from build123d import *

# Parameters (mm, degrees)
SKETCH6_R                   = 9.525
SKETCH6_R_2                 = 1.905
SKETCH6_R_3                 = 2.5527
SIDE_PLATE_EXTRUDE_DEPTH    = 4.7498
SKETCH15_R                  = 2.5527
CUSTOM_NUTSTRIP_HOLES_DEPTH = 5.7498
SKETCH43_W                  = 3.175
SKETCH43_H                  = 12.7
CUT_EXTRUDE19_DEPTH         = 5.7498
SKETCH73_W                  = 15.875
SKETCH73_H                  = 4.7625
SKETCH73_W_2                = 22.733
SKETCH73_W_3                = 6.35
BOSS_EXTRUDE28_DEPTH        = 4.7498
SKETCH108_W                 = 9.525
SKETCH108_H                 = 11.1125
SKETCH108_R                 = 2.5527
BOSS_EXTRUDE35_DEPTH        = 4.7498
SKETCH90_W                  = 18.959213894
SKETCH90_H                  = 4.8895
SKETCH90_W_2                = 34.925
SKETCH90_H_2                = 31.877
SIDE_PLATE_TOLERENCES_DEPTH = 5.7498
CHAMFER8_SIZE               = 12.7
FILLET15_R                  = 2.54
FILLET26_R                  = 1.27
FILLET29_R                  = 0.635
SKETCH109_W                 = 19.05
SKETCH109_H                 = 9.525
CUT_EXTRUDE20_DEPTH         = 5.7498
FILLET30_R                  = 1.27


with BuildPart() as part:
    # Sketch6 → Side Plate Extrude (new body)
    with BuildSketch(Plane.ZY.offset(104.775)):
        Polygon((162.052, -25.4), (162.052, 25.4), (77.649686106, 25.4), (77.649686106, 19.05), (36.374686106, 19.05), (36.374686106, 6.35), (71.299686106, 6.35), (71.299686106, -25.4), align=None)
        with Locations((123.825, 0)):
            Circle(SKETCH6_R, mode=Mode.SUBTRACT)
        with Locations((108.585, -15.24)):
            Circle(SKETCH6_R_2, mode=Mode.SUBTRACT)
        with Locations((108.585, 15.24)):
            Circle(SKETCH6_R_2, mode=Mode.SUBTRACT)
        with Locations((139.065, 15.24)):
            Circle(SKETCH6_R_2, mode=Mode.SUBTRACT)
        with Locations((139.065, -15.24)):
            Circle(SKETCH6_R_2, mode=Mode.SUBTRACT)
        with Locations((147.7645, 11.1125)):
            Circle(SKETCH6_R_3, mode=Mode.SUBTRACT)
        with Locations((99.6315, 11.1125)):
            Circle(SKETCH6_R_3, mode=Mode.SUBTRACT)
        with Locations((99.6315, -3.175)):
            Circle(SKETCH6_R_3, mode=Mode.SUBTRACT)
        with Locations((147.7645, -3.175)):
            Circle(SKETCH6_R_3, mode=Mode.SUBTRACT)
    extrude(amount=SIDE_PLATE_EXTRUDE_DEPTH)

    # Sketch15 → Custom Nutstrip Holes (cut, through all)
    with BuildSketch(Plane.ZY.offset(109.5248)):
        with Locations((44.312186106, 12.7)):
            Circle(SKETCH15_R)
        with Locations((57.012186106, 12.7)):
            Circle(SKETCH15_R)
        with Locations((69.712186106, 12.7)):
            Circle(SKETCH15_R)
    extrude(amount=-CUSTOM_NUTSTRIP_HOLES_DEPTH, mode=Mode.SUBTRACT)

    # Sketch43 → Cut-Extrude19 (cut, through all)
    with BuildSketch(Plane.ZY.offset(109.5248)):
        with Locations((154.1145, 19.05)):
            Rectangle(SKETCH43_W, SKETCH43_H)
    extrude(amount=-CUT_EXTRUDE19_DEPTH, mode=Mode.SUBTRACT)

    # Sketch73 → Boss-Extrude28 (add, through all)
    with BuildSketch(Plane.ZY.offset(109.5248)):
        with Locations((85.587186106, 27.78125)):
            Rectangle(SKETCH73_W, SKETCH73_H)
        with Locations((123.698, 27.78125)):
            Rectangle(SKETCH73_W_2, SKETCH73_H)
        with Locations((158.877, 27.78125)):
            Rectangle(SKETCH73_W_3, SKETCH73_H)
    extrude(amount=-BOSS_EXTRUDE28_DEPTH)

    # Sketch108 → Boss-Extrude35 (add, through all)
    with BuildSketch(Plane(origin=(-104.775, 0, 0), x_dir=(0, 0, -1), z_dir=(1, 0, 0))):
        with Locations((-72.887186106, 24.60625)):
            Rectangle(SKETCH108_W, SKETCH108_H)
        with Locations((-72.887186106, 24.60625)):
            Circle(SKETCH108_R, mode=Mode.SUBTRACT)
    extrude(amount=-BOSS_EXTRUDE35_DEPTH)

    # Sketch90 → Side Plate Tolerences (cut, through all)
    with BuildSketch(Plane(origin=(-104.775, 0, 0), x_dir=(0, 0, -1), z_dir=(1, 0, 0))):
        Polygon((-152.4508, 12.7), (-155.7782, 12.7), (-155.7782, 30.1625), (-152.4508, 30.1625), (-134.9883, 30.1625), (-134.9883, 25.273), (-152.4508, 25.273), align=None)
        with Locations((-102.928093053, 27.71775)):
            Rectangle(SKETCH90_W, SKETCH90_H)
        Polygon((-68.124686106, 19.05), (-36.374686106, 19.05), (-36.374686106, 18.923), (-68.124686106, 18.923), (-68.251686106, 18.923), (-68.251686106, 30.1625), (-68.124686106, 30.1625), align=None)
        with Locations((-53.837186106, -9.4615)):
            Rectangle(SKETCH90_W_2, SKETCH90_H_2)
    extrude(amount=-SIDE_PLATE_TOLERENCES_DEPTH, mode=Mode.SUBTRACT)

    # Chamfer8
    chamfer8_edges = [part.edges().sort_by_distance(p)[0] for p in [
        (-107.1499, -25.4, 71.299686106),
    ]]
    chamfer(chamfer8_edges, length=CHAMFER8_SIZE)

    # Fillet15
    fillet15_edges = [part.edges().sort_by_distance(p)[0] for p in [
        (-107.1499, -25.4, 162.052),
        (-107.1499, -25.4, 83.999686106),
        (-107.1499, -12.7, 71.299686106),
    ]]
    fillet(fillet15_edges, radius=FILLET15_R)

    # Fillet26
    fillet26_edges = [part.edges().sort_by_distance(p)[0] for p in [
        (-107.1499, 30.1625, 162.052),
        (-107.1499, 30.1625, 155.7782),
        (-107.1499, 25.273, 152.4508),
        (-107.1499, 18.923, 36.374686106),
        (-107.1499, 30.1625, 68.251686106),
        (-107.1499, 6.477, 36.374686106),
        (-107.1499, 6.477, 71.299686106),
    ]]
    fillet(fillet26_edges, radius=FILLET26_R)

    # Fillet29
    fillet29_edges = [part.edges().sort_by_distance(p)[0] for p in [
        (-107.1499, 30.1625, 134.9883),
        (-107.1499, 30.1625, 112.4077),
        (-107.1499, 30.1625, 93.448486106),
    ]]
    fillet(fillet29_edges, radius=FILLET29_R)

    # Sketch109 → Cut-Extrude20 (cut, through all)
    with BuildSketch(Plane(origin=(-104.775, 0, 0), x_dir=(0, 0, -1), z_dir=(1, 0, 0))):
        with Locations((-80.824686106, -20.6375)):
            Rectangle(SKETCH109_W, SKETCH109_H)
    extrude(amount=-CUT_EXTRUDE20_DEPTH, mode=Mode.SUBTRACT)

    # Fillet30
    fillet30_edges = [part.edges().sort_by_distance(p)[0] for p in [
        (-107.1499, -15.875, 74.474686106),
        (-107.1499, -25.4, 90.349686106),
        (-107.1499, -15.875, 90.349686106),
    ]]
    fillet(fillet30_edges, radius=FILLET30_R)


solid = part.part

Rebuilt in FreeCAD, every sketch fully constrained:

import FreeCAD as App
import Part
import Sketcher
Q = App.Units.Quantity


def edges_at(feature, points):
    """Names of the edges that pass closest to the given points."""
    edges = feature.Shape.Edges
    near = lambda p: min(range(len(edges)), key=lambda i: edges[i].distToShape(Part.Vertex(*p))[0])
    return sorted({f"Edge{near(p) + 1}" for p in points})


def add_polygon(sketch, points):
    """Adds a closed chain of lines whose ends are joined by coincident constraints."""
    first, n = sketch.GeometryCount, len(points)
    for a, b in zip(points, points[1:] + points[:1]):
        sketch.addGeometry(Part.LineSegment(App.Vector(*a, 0), App.Vector(*b, 0)), False)
    for i in range(n):
        sketch.addConstraint(Sketcher.Constraint("Coincident", first + i, 2, first + (i + 1) % n, 1))

doc = App.newDocument("Part")
body = doc.addObject("PartDesign::Body", "Body")

# Sketch on YZ plane
sketch1 = body.newObject("Sketcher::SketchObject", "Sketch")
sketch1.AttachmentSupport = (doc.getObject("YZ_Plane"), [""])
sketch1.MapMode = "FlatFace"
sketch1.AttachmentOffset = App.Placement(App.Vector(0, 0, -4.125 * 25.4), App.Rotation())
add_polygon(sketch1, [(-25.4, 162.1), (25.4, 162.1), (25.4, 77.6), (19.1, 77.6), (19.1, 36.4), (6.3, 36.4), (6.3, 71.3), (-25.4, 71.3)])  # lines 0-7
sketch1.addGeometry(Part.Circle(App.Vector(-15.2, 108.6, 0), App.Vector(0, 0, 1), 1.9), False)  # 8
sketch1.addGeometry(Part.Circle(App.Vector(-3.2, 99.6, 0), App.Vector(0, 0, 1), 2.6), False)  # 9
sketch1.addGeometry(Part.Circle(App.Vector(-15.2, 139.1, 0), App.Vector(0, 0, 1), 1.9), False)  # 10
sketch1.addGeometry(Part.Circle(App.Vector(-3.2, 147.8, 0), App.Vector(0, 0, 1), 2.6), False)  # 11
sketch1.addGeometry(Part.Circle(App.Vector(11.1, 99.6, 0), App.Vector(0, 0, 1), 2.6), False)  # 12
sketch1.addGeometry(Part.Circle(App.Vector(15.2, 108.6, 0), App.Vector(0, 0, 1), 1.9), False)  # 13
sketch1.addGeometry(Part.Circle(App.Vector(0, 123.8, 0), App.Vector(0, 0, 1), 9.5), False)  # 14
sketch1.addGeometry(Part.Circle(App.Vector(11.1, 147.8, 0), App.Vector(0, 0, 1), 2.6), False)  # 15
sketch1.addGeometry(Part.Circle(App.Vector(15.2, 139.1, 0), App.Vector(0, 0, 1), 1.9), False)  # 16
sketch1.addConstraint([
    Sketcher.Constraint("Horizontal", 0),
    Sketcher.Constraint("Vertical", 1),
    Sketcher.Constraint("Horizontal", 2),
    Sketcher.Constraint("Vertical", 3),
    Sketcher.Constraint("Horizontal", 4),
    Sketcher.Constraint("Vertical", 5),
    Sketcher.Constraint("Horizontal", 6),
    Sketcher.Constraint("Vertical", 7),
    Sketcher.Constraint("Equal", 8, 10),
    Sketcher.Constraint("Equal", 9, 11),
    Sketcher.Constraint("Equal", 11, 12),
    Sketcher.Constraint("Equal", 10, 13),
    Sketcher.Constraint("Equal", 12, 15),
    Sketcher.Constraint("Equal", 13, 16),
    Sketcher.Constraint("Symmetric", 8, 3, 13, 3, -2),
    Sketcher.Constraint("Symmetric", 10, 3, 16, 3, -2),
    Sketcher.Constraint("PointOnObject", 14, 3, -2),
    Sketcher.Constraint("Horizontal", 9, 3, 12, 3),
    Sketcher.Constraint("Horizontal", 11, 3, 15, 3),
    Sketcher.Constraint("Vertical", 8, 3, 10, 3),
    Sketcher.Constraint("Vertical", 9, 3, 11, 3),
    Sketcher.Constraint("Vertical", 12, 3, 15, 3),
    Sketcher.Constraint("Diameter", 8, Q("0.15 in")),
    Sketcher.Constraint("Diameter", 14, Q("0.75 in")),
    Sketcher.Constraint("DistanceX", 0, 1, 0, 2, Q("2 in")),
    Sketcher.Constraint("Diameter", 9, Q("0.201 in")),
    Sketcher.Constraint("DistanceX", 4, 2, 4, 1, Q("0.5 in")),
    Sketcher.Constraint("DistanceX", -1, 1, 0, 2, Q("1 in")),
    Sketcher.Constraint("DistanceX", 2, 2, 2, 1, Q("0.25 in")),
    Sketcher.Constraint("DistanceX", 8, 3, -1, 1, Q("0.6 in")),
    Sketcher.Constraint("DistanceY", 8, 3, 10, 3, Q("1.2 in")),
    Sketcher.Constraint("DistanceY", 14, 3, 10, 3, Q("0.6 in")),
    Sketcher.Constraint("DistanceY", 3, 2, 3, 1, Q("1.625 in")),
    Sketcher.Constraint("DistanceY", 5, 1, 5, 2, Q("1.375 in")),
    Sketcher.Constraint("DistanceY", -1, 1, 0, 2, Q("6.38 in")),
    Sketcher.Constraint("DistanceY", -1, 1, 8, 3, Q("4.275 in")),
    Sketcher.Constraint("DistanceX", 9, 3, -1, 1, Q("0.125 in")),
    Sketcher.Constraint("DistanceX", -1, 1, 12, 3, Q("0.4375 in")),
    Sketcher.Constraint("DistanceY", 9, 3, 11, 3, Q("1.895 in")),
    Sketcher.Constraint("DistanceY", 15, 3, 0, 2, Q("0.5625 in")),
    Sketcher.Constraint("DistanceY", 1, 2, 1, 1, Q("84.402314 mm")),
])
pad1 = body.newObject("PartDesign::Pad", "Pad")
pad1.Profile = sketch1
pad1.Length = Q("0.187 in")
pad1.Reversed = True

# Sketch on YZ plane
sketch2 = body.newObject("Sketcher::SketchObject", "Sketch001")
sketch2.AttachmentSupport = (doc.getObject("YZ_Plane"), [""])
sketch2.MapMode = "FlatFace"
sketch2.AttachmentOffset = App.Placement(App.Vector(0, 0, -4.312 * 25.4), App.Rotation())
sketch2.addGeometry([
    Part.Circle(App.Vector(12.7, 44.3, 0), App.Vector(0, 0, 1), 2.6),
    Part.Circle(App.Vector(12.7, 57, 0), App.Vector(0, 0, 1), 2.6),
    Part.Circle(App.Vector(12.7, 69.7, 0), App.Vector(0, 0, 1), 2.6),
], False)
sketch2.addConstraint([
    Sketcher.Constraint("Equal", 0, 1),
    Sketcher.Constraint("Equal", 1, 2),
    Sketcher.Constraint("Vertical", 0, 3, 1, 3),
    Sketcher.Constraint("Vertical", 1, 3, 2, 3),
    Sketcher.Constraint("Diameter", 0, Q("0.201 in")),
    Sketcher.Constraint("DistanceY", 0, 3, 2, 3, Q("1 in")),
    Sketcher.Constraint("DistanceX", -1, 1, 0, 3, Q("0.5 in")),
    Sketcher.Constraint("DistanceY", 0, 3, 1, 3, Q("0.5 in")),
    Sketcher.Constraint("DistanceY", -1, 1, 0, 3, Q("44.312186 mm")),
])
pocket1 = body.newObject("PartDesign::Pocket", "Pocket")
pocket1.Profile = sketch2
pocket1.Type = "ThroughAll"
pocket1.Reversed = True

# Sketch on YZ plane
sketch3 = body.newObject("Sketcher::SketchObject", "Sketch002")
sketch3.AttachmentSupport = (doc.getObject("YZ_Plane"), [""])
sketch3.MapMode = "FlatFace"
sketch3.AttachmentOffset = App.Placement(App.Vector(0, 0, -4.312 * 25.4), App.Rotation())
add_polygon(sketch3, [(25.4, 152.5), (12.7, 152.5), (12.7, 155.7), (25.4, 155.7)])  # lines 0-3
sketch3.addConstraint([
    Sketcher.Constraint("Horizontal", 0),
    Sketcher.Constraint("Vertical", 1),
    Sketcher.Constraint("Horizontal", 2),
    Sketcher.Constraint("Vertical", 3),
    Sketcher.Constraint("DistanceX", 0, 2, 0, 1, Q("0.5 in")),
    Sketcher.Constraint("DistanceX", -1, 1, 2, 2, Q("1 in")),
    Sketcher.Constraint("DistanceY", 1, 1, 1, 2, Q("0.125 in")),
    Sketcher.Constraint("DistanceY", -1, 1, 1, 2, Q("6.13 in")),
])
pocket2 = body.newObject("PartDesign::Pocket", "Pocket001")
pocket2.Profile = sketch3
pocket2.Type = "ThroughAll"
pocket2.Reversed = True

# Sketch on YZ plane
sketch4 = body.newObject("Sketcher::SketchObject", "Sketch003")
sketch4.AttachmentSupport = (doc.getObject("YZ_Plane"), [""])
sketch4.MapMode = "FlatFace"
sketch4.AttachmentOffset = App.Placement(App.Vector(0, 0, -4.312 * 25.4), App.Rotation())
add_polygon(sketch4, [(30.2, 77.6), (25.4, 77.6), (25.4, 93.5), (30.2, 93.5)])  # lines 0-3
add_polygon(sketch4, [(30.2, 112.3), (25.4, 112.3), (25.4, 135.1), (30.2, 135.1)])  # lines 4-7
add_polygon(sketch4, [(30.2, 155.7), (25.4, 155.7), (25.4, 162.1), (30.2, 162.1)])  # lines 8-11
sketch4.addConstraint([
    Sketcher.Constraint("Horizontal", 0),
    Sketcher.Constraint("Vertical", 1),
    Sketcher.Constraint("Horizontal", 2),
    Sketcher.Constraint("Vertical", 3),
    Sketcher.Constraint("Horizontal", 4),
    Sketcher.Constraint("Vertical", 5),
    Sketcher.Constraint("Horizontal", 6),
    Sketcher.Constraint("Vertical", 7),
    Sketcher.Constraint("Horizontal", 8),
    Sketcher.Constraint("Vertical", 9),
    Sketcher.Constraint("Horizontal", 10),
    Sketcher.Constraint("Vertical", 11),
    Sketcher.Constraint("Vertical", 1, 2, 4, 2),
    Sketcher.Constraint("Vertical", 3, 2, 6, 2),
    Sketcher.Constraint("Vertical", 5, 2, 8, 2),
    Sketcher.Constraint("Vertical", 7, 2, 10, 2),
    Sketcher.Constraint("DistanceX", -1, 1, 0, 2, Q("1 in")),
    Sketcher.Constraint("DistanceY", 9, 1, 9, 2, Q("0.25 in")),
    Sketcher.Constraint("DistanceX", 0, 2, 0, 1, Q("0.1875 in")),
    Sketcher.Constraint("DistanceY", 1, 1, 1, 2, Q("0.625 in")),
    Sketcher.Constraint("DistanceY", 5, 1, 5, 2, Q("0.895 in")),
    Sketcher.Constraint("DistanceY", -1, 1, 8, 2, Q("6.13 in")),
    Sketcher.Constraint("DistanceY", 5, 2, 8, 2, Q("0.8125 in")),
    Sketcher.Constraint("DistanceY", -1, 1, 0, 2, Q("77.649686 mm")),
])
pad2 = body.newObject("PartDesign::Pad", "Pad001")
pad2.Profile = sketch4
pad2.Length = Q("0.187 in")

# Sketch on YZ plane
sketch5 = body.newObject("Sketcher::SketchObject", "Sketch004")
sketch5.AttachmentSupport = (doc.getObject("YZ_Plane"), [""])
sketch5.MapMode = "FlatFace"
sketch5.AttachmentOffset = App.Placement(App.Vector(0, 0, -4.125 * 25.4), App.Rotation())
add_polygon(sketch5, [(30.2, 77.6), (19.1, 77.6), (19.1, 68.1), (30.2, 68.1)])  # lines 0-3
sketch5.addGeometry(Part.Circle(App.Vector(24.6, 72.9, 0), App.Vector(0, 0, 1), 2.6), False)  # 4
sketch5.addConstraint([
    Sketcher.Constraint("Horizontal", 0),
    Sketcher.Constraint("Vertical", 1),
    Sketcher.Constraint("Horizontal", 2),
    Sketcher.Constraint("Vertical", 3),
    Sketcher.Constraint("Diameter", 4, Q("0.201 in")),
    Sketcher.Constraint("DistanceX", 0, 2, 0, 1, Q("0.4375 in")),
    Sketcher.Constraint("DistanceY", 1, 2, 1, 1, Q("0.375 in")),
    Sketcher.Constraint("DistanceX", -1, 1, 0, 2, Q("0.75 in")),
    Sketcher.Constraint("DistanceX", -1, 1, 4, 3, Q("0.96875 in")),
    Sketcher.Constraint("DistanceY", 4, 3, 0, 2, Q("0.1875 in")),
    Sketcher.Constraint("DistanceY", -1, 1, 4, 3, Q("72.887186 mm")),
])
pad3 = body.newObject("PartDesign::Pad", "Pad002")
pad3.Profile = sketch5
pad3.Length = Q("0.187 in")
pad3.Reversed = True

# Sketch on YZ plane
sketch6 = body.newObject("Sketcher::SketchObject", "Sketch005")
sketch6.AttachmentSupport = (doc.getObject("YZ_Plane"), [""])
sketch6.MapMode = "FlatFace"
sketch6.AttachmentOffset = App.Placement(App.Vector(0, 0, -4.125 * 25.4), App.Rotation())
add_polygon(sketch6, [(12.7, 155.78), (12.7, 152.45), (25.27, 152.45), (25.27, 134.99), (30.16, 134.99), (30.16, 155.78)])  # lines 0-5
add_polygon(sketch6, [(30.16, 112.41), (25.27, 112.41), (25.27, 93.45), (30.16, 93.45)])  # lines 6-9
add_polygon(sketch6, [(19.05, 36.37), (19.05, 68.12), (30.16, 68.12), (30.16, 68.25), (18.92, 68.25), (18.92, 36.37)])  # lines 10-15
add_polygon(sketch6, [(6.48, 71.3), (-25.4, 71.3), (-25.4, 36.37), (6.48, 36.37)])  # lines 16-19
sketch6.addConstraint([
    Sketcher.Constraint("Vertical", 0),
    Sketcher.Constraint("Horizontal", 1),
    Sketcher.Constraint("Vertical", 2),
    Sketcher.Constraint("Horizontal", 3),
    Sketcher.Constraint("Vertical", 4),
    Sketcher.Constraint("Horizontal", 5),
    Sketcher.Constraint("Horizontal", 6),
    Sketcher.Constraint("Vertical", 7),
    Sketcher.Constraint("Horizontal", 8),
    Sketcher.Constraint("Vertical", 9),
    Sketcher.Constraint("Vertical", 10),
    Sketcher.Constraint("Horizontal", 11),
    Sketcher.Constraint("Vertical", 12),
    Sketcher.Constraint("Horizontal", 13),
    Sketcher.Constraint("Vertical", 14),
    Sketcher.Constraint("Horizontal", 15),
    Sketcher.Constraint("Horizontal", 16),
    Sketcher.Constraint("Vertical", 17),
    Sketcher.Constraint("Horizontal", 18),
    Sketcher.Constraint("Vertical", 19),
    Sketcher.Constraint("Horizontal", 15, 2, 17, 2),
    Sketcher.Constraint("Vertical", 2, 2, 6, 2),
    Sketcher.Constraint("Vertical", 4, 2, 8, 2),
    Sketcher.Constraint("Vertical", 9, 2, 11, 2),
    Sketcher.Constraint("Equal", 5, 2),
    Sketcher.Constraint("Equal", 15, 12),
    Sketcher.Constraint("Equal", 18, 14),
    Sketcher.Constraint("DistanceX", 16, 2, -1, 1, Q("1 in")),
    Sketcher.Constraint("DistanceY", 10, 1, 10, 2, Q("1.25 in")),
    Sketcher.Constraint("DistanceX", -1, 1, 0, 2, Q("0.5 in")),
    Sketcher.Constraint("DistanceX", 1, 1, 1, 2, Q("0.495 in")),
    Sketcher.Constraint("DistanceX", 5, 2, 5, 1, Q("0.6875 in")),
    Sketcher.Constraint("DistanceX", 11, 1, 11, 2, Q("0.4375 in")),
    Sketcher.Constraint("DistanceX", 15, 1, 15, 2, Q("0.005 in")),
    Sketcher.Constraint("DistanceY", 0, 2, 0, 1, Q("0.131 in")),
    Sketcher.Constraint("DistanceY", 17, 2, 17, 1, Q("1.375 in")),
    Sketcher.Constraint("DistanceY", -1, 1, 0, 2, Q("6.002 in")),
    Sketcher.Constraint("DistanceY", 6, 2, 2, 2, Q("0.889 in")),
    Sketcher.Constraint("DistanceY", 10, 2, 7, 2, Q("0.997 in")),
    Sketcher.Constraint("DistanceY", 7, 2, 7, 1, Q("18.959214 mm")),
])
pocket3 = body.newObject("PartDesign::Pocket", "Pocket002")
pocket3.Profile = sketch6
pocket3.Type = "ThroughAll"
doc.recompute()

chamfer = body.newObject("PartDesign::Chamfer", "Chamfer")
chamfer.Base = (pocket3, edges_at(pocket3, [(-107.15, -25.4, 71.3)]))
chamfer.Size = Q("0.5 in")
doc.recompute()

fillet = body.newObject("PartDesign::Fillet", "Fillet")
fillet.Base = (chamfer, edges_at(chamfer, [(-107.15, -25.4, 162.052), (-107.15, -25.4, 84), (-107.15, -12.7, 71.3)]))
fillet.Radius = Q("0.1 in")
doc.recompute()

fillet2 = body.newObject("PartDesign::Fillet", "Fillet001")
fillet2.Base = (fillet, edges_at(fillet, [
    (-107.15, 30.163, 162.052),
    (-107.15, 30.163, 155.778),
    (-107.15, 25.273, 152.451),
    (-107.15, 18.923, 36.375),
    (-107.15, 30.163, 68.252),
    (-107.15, 6.477, 36.375),
    (-107.15, 6.477, 71.3),
]))
fillet2.Radius = Q("0.05 in")
doc.recompute()

fillet3 = body.newObject("PartDesign::Fillet", "Fillet002")
fillet3.Base = (fillet2, edges_at(fillet2, [(-107.15, 30.163, 134.988), (-107.15, 30.163, 112.408), (-107.15, 30.163, 93.448)]))
fillet3.Radius = Q("0.025 in")

# Sketch on YZ plane
sketch7 = body.newObject("Sketcher::SketchObject", "Sketch006")
sketch7.AttachmentSupport = (doc.getObject("YZ_Plane"), [""])
sketch7.MapMode = "FlatFace"
sketch7.AttachmentOffset = App.Placement(App.Vector(0, 0, -4.125 * 25.4), App.Rotation())
add_polygon(sketch7, [(-16, 90), (-25, 90), (-25, 71), (-16, 71)])  # lines 0-3
sketch7.addConstraint([
    Sketcher.Constraint("Horizontal", 0),
    Sketcher.Constraint("Vertical", 1),
    Sketcher.Constraint("Horizontal", 2),
    Sketcher.Constraint("Vertical", 3),
    Sketcher.Constraint("DistanceX", 0, 2, -1, 1, Q("1 in")),
    Sketcher.Constraint("DistanceY", 1, 2, 1, 1, Q("0.75 in")),
    Sketcher.Constraint("DistanceX", 0, 2, 0, 1, Q("0.375 in")),
    Sketcher.Constraint("DistanceY", -1, 1, 0, 2, Q("90.349686 mm")),
])
pocket4 = body.newObject("PartDesign::Pocket", "Pocket003")
pocket4.Profile = sketch7
pocket4.Type = "ThroughAll"
doc.recompute()

fillet4 = body.newObject("PartDesign::Fillet", "Fillet003")
fillet4.Base = (pocket4, edges_at(pocket4, [(-107.15, -15.875, 74.475), (-107.15, -25.4, 90.35), (-107.15, -15.875, 90.35)]))
fillet4.Radius = Q("0.05 in")

doc.recompute()
